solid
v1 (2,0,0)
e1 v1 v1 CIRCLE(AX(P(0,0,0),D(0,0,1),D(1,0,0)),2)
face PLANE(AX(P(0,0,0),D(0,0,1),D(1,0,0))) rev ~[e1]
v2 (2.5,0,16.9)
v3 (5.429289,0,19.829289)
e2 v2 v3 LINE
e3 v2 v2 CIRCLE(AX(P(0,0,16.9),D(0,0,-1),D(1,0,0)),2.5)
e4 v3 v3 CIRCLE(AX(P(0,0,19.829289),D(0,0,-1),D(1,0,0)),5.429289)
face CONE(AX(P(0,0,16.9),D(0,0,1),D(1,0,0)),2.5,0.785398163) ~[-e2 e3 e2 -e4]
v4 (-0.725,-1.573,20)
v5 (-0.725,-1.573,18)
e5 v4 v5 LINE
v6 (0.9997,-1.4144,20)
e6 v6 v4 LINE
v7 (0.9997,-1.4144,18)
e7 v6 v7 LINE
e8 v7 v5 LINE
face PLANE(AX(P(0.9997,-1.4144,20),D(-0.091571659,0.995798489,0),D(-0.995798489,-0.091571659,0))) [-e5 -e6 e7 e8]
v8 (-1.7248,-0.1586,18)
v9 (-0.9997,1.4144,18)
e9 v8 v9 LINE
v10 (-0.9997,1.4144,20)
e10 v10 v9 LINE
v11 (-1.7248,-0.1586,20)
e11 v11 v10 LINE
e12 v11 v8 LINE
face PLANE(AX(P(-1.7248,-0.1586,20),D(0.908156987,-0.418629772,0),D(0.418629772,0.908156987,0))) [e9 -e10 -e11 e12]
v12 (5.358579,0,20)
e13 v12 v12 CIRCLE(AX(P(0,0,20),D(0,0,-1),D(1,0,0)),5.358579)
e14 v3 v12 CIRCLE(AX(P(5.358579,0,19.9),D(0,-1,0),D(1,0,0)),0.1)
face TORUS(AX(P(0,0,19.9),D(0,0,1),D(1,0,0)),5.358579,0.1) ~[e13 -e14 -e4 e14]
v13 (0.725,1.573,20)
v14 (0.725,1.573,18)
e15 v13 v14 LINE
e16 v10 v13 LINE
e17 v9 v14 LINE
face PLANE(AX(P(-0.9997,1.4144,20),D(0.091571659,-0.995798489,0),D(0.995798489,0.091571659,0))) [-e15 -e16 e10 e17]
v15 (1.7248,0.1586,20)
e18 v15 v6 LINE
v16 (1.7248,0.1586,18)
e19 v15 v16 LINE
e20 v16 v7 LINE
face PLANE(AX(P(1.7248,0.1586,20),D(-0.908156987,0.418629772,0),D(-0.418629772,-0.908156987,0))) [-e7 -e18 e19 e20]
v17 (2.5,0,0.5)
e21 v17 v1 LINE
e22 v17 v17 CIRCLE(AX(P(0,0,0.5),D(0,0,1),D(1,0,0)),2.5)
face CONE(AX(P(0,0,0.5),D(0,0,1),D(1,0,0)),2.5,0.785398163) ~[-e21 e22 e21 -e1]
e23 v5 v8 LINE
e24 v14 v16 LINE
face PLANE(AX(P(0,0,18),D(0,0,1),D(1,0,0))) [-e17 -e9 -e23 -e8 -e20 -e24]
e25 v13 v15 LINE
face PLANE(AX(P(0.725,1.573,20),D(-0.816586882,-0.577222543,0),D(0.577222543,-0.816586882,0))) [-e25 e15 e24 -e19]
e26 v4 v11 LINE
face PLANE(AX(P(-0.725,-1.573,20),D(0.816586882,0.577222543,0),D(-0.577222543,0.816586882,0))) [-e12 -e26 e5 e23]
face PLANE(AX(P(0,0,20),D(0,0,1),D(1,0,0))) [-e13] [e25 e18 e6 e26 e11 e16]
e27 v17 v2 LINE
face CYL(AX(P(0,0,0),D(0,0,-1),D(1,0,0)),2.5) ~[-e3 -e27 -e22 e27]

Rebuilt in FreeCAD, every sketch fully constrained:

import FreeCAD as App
import Part
import Sketcher
from FreeCAD import Vector
Q = App.Units.Quantity


def edges_at(feature, points):
    """Names of the edges that pass closest to the given points."""
    edges = feature.Shape.Edges
    near = lambda p: min(range(len(edges)), key=lambda i: edges[i].distToShape(Part.Vertex(*p))[0])
    return sorted({f"Edge{near(p) + 1}" for p in points})

doc = App.newDocument("Part")
body = doc.addObject("PartDesign::Body", "Body")

# Sketch on XY plane
sketch1 = body.newObject("Sketcher::SketchObject", "Sketch")
sketch1.AttachmentSupport = (doc.getObject("XY_Plane"), [""])
sketch1.MapMode = "FlatFace"
sketch1.addGeometry(Part.Circle(Vector(0, 0, 0), Vector(0, 0, 1), 2.5), False)
sketch1.addConstraint(Sketcher.Constraint("Coincident", 0, 3, -1, 1))
sketch1.addConstraint(Sketcher.Constraint("Diameter", 0, Q("5 mm")))
pad1 = body.newObject("PartDesign::Pad", "Pad")
pad1.Profile = sketch1
pad1.Length = 16.9

# Sketch on XY plane
sketch2 = body.newObject("Sketcher::SketchObject", "Sketch001")
sketch2.AttachmentSupport = (doc.getObject("XY_Plane"), [""])
sketch2.MapMode = "FlatFace"
sketch2.AttachmentOffset = App.Placement(Vector(0, 0, 16.9), App.Rotation())
sketch2.addGeometry(Part.Circle(Vector(0, 0, 0), Vector(0, 0, 1), 2.5), False)
sketch2.addConstraint(Sketcher.Constraint("Coincident", 0, 3, -1, 1))
sketch2.addConstraint(Sketcher.Constraint("Diameter", 0, Q("5 mm")))
pad2 = body.newObject("PartDesign::Pad", "Pad001")
pad2.Profile = sketch2
pad2.Length = 3.1
pad2.TaperAngle = 45

# Sketch on XY plane
sketch3 = body.newObject("Sketcher::SketchObject", "Sketch002")
sketch3.AttachmentSupport = (doc.getObject("XY_Plane"), [""])
sketch3.MapMode = "FlatFace"
sketch3.AttachmentOffset = App.Placement(Vector(0, 0, 20), App.Rotation())
sketch3.addGeometry(Part.LineSegment(Vector(1.7248, 0.1586, 0), Vector(0.725, 1.573, 0)), False)
sketch3.addGeometry(Part.LineSegment(Vector(0.725, 1.573, 0), Vector(-0.9997, 1.4144, 0)), False)
sketch3.addGeometry(Part.LineSegment(Vector(-0.9997, 1.4144, 0), Vector(-1.7248, -0.1586, 0)), False)
sketch3.addGeometry(Part.LineSegment(Vector(-1.7248, -0.1586, 0), Vector(-0.725, -1.573, 0)), False)
sketch3.addGeometry(Part.LineSegment(Vector(-0.725, -1.573, 0), Vector(0.9997, -1.4144, 0)), False)
sketch3.addGeometry(Part.LineSegment(Vector(0.9997, -1.4144, 0), Vector(1.7248, 0.1586, 0)), False)
sketch3.addConstraint(Sketcher.Constraint("Coincident", 0, 2, 1, 1))
sketch3.addConstraint(Sketcher.Constraint("Coincident", 1, 2, 2, 1))
sketch3.addConstraint(Sketcher.Constraint("Coincident", 2, 2, 3, 1))
sketch3.addConstraint(Sketcher.Constraint("Coincident", 3, 2, 4, 1))
sketch3.addConstraint(Sketcher.Constraint("Coincident", 4, 2, 5, 1))
sketch3.addConstraint(Sketcher.Constraint("Coincident", 5, 2, 0, 1))
sketch3.addConstraint(Sketcher.Constraint("Symmetric", 0, 2, 3, 2, -1, 1))
sketch3.addConstraint(Sketcher.Constraint("Symmetric", 1, 2, 4, 2, -1, 1))
sketch3.addConstraint(Sketcher.Constraint("Symmetric", 2, 2, 5, 2, -1, 1))
sketch3.addConstraint(Sketcher.Constraint("Equal", 0, 1))
sketch3.addConstraint(Sketcher.Constraint("Equal", 1, 2))
sketch3.addConstraint(Sketcher.Constraint("DistanceX", 3, 2, 0, 2, Q("1.45 mm")))
sketch3.addConstraint(Sketcher.Constraint("Distance", 0, Q("1.732 mm")))
sketch3.addConstraint(Sketcher.Constraint("DistanceY", -1, 1, 0, 2, Q("1.573 mm")))
sketch3.addConstraint(Sketcher.Constraint("DistanceX", 2, 2, 1, 2, Q("0.725 mm")))
pocket1 = body.newObject("PartDesign::Pocket", "Pocket")
pocket1.Profile = sketch3
pocket1.Length = 2
doc.recompute()

chamfer = body.newObject("PartDesign::Chamfer", "Chamfer")
chamfer.Base = (pocket1, edges_at(pocket1, [(-2.5, 0, 0)]))
chamfer.Size = 0.5
doc.recompute()

fillet = body.newObject("PartDesign::Fillet", "Fillet")
fillet.Base = (chamfer, edges_at(chamfer, [(-5.6, 0, 20)]))
fillet.Radius = 0.1

doc.recompute()
